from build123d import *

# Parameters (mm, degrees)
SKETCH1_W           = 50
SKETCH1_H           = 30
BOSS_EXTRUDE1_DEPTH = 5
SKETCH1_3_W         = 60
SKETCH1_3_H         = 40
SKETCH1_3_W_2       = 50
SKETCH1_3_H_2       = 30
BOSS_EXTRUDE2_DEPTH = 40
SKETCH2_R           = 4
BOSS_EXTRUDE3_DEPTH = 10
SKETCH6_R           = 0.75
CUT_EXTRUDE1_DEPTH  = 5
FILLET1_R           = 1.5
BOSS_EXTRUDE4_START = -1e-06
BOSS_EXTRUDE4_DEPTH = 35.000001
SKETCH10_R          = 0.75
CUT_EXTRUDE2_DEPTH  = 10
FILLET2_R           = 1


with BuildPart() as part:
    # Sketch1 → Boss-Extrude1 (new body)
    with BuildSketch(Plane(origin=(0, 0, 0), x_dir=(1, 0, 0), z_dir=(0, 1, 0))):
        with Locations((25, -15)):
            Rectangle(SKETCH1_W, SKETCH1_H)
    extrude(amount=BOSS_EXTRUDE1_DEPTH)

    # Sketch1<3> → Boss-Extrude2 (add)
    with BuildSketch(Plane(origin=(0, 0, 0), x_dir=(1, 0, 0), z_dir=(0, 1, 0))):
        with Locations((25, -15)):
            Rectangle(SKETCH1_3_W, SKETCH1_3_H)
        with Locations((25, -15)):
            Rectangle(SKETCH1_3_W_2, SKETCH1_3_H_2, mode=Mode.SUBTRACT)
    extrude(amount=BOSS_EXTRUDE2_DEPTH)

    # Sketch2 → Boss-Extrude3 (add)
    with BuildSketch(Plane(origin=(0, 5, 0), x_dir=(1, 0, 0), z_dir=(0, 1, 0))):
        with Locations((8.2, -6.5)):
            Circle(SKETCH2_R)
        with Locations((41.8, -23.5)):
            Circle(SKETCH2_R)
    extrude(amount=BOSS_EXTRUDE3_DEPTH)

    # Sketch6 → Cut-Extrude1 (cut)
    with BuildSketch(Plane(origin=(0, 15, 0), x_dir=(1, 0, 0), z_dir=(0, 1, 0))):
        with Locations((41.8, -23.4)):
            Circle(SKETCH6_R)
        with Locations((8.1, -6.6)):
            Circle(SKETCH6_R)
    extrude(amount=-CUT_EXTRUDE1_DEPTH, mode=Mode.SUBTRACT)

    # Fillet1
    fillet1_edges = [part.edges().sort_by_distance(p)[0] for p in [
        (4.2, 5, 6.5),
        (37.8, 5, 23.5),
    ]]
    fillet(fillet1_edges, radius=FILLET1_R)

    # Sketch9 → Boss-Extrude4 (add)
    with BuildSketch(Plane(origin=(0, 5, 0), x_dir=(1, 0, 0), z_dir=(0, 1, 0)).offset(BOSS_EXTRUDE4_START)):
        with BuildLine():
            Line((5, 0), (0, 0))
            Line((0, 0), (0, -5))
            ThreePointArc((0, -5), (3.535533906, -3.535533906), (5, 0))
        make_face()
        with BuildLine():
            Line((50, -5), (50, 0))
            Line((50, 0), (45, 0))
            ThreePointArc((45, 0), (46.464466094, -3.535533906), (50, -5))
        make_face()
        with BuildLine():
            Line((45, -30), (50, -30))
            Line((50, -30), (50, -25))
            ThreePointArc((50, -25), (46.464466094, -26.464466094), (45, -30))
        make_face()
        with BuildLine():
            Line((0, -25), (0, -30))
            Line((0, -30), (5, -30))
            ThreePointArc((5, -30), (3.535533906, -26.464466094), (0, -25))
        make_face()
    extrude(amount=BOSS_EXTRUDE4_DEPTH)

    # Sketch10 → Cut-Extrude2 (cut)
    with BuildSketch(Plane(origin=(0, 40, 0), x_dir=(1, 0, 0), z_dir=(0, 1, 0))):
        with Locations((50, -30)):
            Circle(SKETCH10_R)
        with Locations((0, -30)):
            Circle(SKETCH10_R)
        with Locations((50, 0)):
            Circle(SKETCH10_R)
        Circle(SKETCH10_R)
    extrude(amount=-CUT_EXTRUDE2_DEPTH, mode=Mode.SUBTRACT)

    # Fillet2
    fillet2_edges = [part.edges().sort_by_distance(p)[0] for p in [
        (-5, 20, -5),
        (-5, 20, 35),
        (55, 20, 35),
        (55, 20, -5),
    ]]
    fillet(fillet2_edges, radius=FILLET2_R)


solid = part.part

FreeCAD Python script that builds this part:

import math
import FreeCAD as App
import Part
import Sketcher
from FreeCAD import Vector
Q = App.Units.Quantity


def edges_at(feature, points):
    """Names of the edges that pass closest to the given points."""
    edges = feature.Shape.Edges
    near = lambda p: min(range(len(edges)), key=lambda i: edges[i].distToShape(Part.Vertex(*p))[0])
    return sorted({f"Edge{near(p) + 1}" for p in points})

doc = App.newDocument("Part")
body = doc.addObject("PartDesign::Body", "Body")

# Sketch on XZ plane
sketch1 = body.newObject("Sketcher::SketchObject", "Sketch")
sketch1.AttachmentSupport = (doc.getObject("XZ_Plane"), [""])
sketch1.MapMode = "FlatFace"
sketch1.addGeometry(Part.LineSegment(Vector(0, 0, 0), Vector(0, 30, 0)), False)
sketch1.addGeometry(Part.LineSegment(Vector(0, 30, 0), Vector(50, 30, 0)), False)
sketch1.addGeometry(Part.LineSegment(Vector(50, 30, 0), Vector(50, 0, 0)), False)
sketch1.addGeometry(Part.LineSegment(Vector(50, 0, 0), Vector(0, 0, 0)), False)
sketch1.addConstraint(Sketcher.Constraint("Coincident", 0, 2, 1, 1))
sketch1.addConstraint(Sketcher.Constraint("Coincident", 1, 2, 2, 1))
sketch1.addConstraint(Sketcher.Constraint("Coincident", 2, 2, 3, 1))
sketch1.addConstraint(Sketcher.Constraint("Coincident", 3, 2, 0, 1))
sketch1.addConstraint(Sketcher.Constraint("Vertical", 0))
sketch1.addConstraint(Sketcher.Constraint("Horizontal", 1))
sketch1.addConstraint(Sketcher.Constraint("Vertical", 2))
sketch1.addConstraint(Sketcher.Constraint("Horizontal", 3))
sketch1.addConstraint(Sketcher.Constraint("Coincident", 3, 2, -1, 1))
sketch1.addConstraint(Sketcher.Constraint("DistanceX", 1, 1, 1, 2, Q("50 mm")))
sketch1.addConstraint(Sketcher.Constraint("DistanceY", 0, 1, 0, 2, Q("30 mm")))
pad1 = body.newObject("PartDesign::Pad", "Pad")
pad1.Profile = sketch1
pad1.Length = 5
pad1.Reversed = True

# Sketch on XZ plane
sketch2 = body.newObject("Sketcher::SketchObject", "Sketch001")
sketch2.AttachmentSupport = (doc.getObject("XZ_Plane"), [""])
sketch2.MapMode = "FlatFace"
sketch2.addGeometry(Part.LineSegment(Vector(-5, -5, 0), Vector(-5, 35, 0)), False)
sketch2.addGeometry(Part.LineSegment(Vector(-5, 35, 0), Vector(55, 35, 0)), False)
sketch2.addGeometry(Part.LineSegment(Vector(55, 35, 0), Vector(55, -5, 0)), False)
sketch2.addGeometry(Part.LineSegment(Vector(55, -5, 0), Vector(-5, -5, 0)), False)
sketch2.addGeometry(Part.LineSegment(Vector(50, 30, 0), Vector(0, 30, 0)), False)
sketch2.addGeometry(Part.LineSegment(Vector(0, 30, 0), Vector(0, 0, 0)), False)
sketch2.addGeometry(Part.LineSegment(Vector(0, 0, 0), Vector(50, 0, 0)), False)
sketch2.addGeometry(Part.LineSegment(Vector(50, 0, 0), Vector(50, 30, 0)), False)
sketch2.addConstraint(Sketcher.Constraint("Coincident", 0, 2, 1, 1))
sketch2.addConstraint(Sketcher.Constraint("Coincident", 1, 2, 2, 1))
sketch2.addConstraint(Sketcher.Constraint("Coincident", 2, 2, 3, 1))
sketch2.addConstraint(Sketcher.Constraint("Coincident", 3, 2, 0, 1))
sketch2.addConstraint(Sketcher.Constraint("Coincident", 4, 2, 5, 1))
sketch2.addConstraint(Sketcher.Constraint("Coincident", 5, 2, 6, 1))
sketch2.addConstraint(Sketcher.Constraint("Coincident", 6, 2, 7, 1))
sketch2.addConstraint(Sketcher.Constraint("Coincident", 7, 2, 4, 1))
sketch2.addConstraint(Sketcher.Constraint("Vertical", 0))
sketch2.addConstraint(Sketcher.Constraint("Horizontal", 1))
sketch2.addConstraint(Sketcher.Constraint("Vertical", 2))
sketch2.addConstraint(Sketcher.Constraint("Horizontal", 3))
sketch2.addConstraint(Sketcher.Constraint("Horizontal", 4))
sketch2.addConstraint(Sketcher.Constraint("Vertical", 5))
sketch2.addConstraint(Sketcher.Constraint("Horizontal", 6))
sketch2.addConstraint(Sketcher.Constraint("Vertical", 7))
sketch2.addConstraint(Sketcher.Constraint("Coincident", 5, 2, -1, 1))
sketch2.addConstraint(Sketcher.Constraint("DistanceX", 1, 1, 1, 2, Q("60 mm")))
sketch2.addConstraint(Sketcher.Constraint("DistanceX", 4, 2, 4, 1, Q("50 mm")))
sketch2.addConstraint(Sketcher.Constraint("DistanceY", 0, 1, 0, 2, Q("40 mm")))
sketch2.addConstraint(Sketcher.Constraint("DistanceY", 5, 2, 5, 1, Q("30 mm")))
sketch2.addConstraint(Sketcher.Constraint("DistanceX", 0, 2, -1, 1, Q("5 mm")))
sketch2.addConstraint(Sketcher.Constraint("DistanceY", -1, 1, 0, 2, Q("35 mm")))
pad2 = body.newObject("PartDesign::Pad", "Pad001")
pad2.Profile = sketch2
pad2.Length = 40
pad2.Reversed = True

# Sketch on XZ plane
sketch3 = body.newObject("Sketcher::SketchObject", "Sketch002")
sketch3.AttachmentSupport = (doc.getObject("XZ_Plane"), [""])
sketch3.MapMode = "FlatFace"
sketch3.AttachmentOffset = App.Placement(Vector(0, 0, -5), App.Rotation())
sketch3.addGeometry(Part.Circle(Vector(8.2, 6.5, 0), Vector(0, 0, 1), 4), False)
sketch3.addGeometry(Part.Circle(Vector(41.8, 23.5, 0), Vector(0, 0, 1), 4), False)
sketch3.addConstraint(Sketcher.Constraint("Equal", 0, 1))
sketch3.addConstraint(Sketcher.Constraint("Diameter", 0, Q("8 mm")))
sketch3.addConstraint(Sketcher.Constraint("DistanceY", 0, 3, 1, 3, Q("17 mm")))
sketch3.addConstraint(Sketcher.Constraint("DistanceX", -1, 1, 0, 3, Q("8.2 mm")))
sketch3.addConstraint(Sketcher.Constraint("DistanceY", -1, 1, 0, 3, Q("6.5 mm")))
sketch3.addConstraint(Sketcher.Constraint("DistanceX", -1, 1, 1, 3, Q("41.8 mm")))
pad3 = body.newObject("PartDesign::Pad", "Pad002")
pad3.Profile = sketch3
pad3.Length = 10
pad3.Reversed = True

# Sketch on XZ plane
sketch4 = body.newObject("Sketcher::SketchObject", "Sketch003")
sketch4.AttachmentSupport = (doc.getObject("XZ_Plane"), [""])
sketch4.MapMode = "FlatFace"
sketch4.AttachmentOffset = App.Placement(Vector(0, 0, -15), App.Rotation())
sketch4.addGeometry(Part.Circle(Vector(41.8, 23.4, 0), Vector(0, 0, 1), 0.8), False)
sketch4.addGeometry(Part.Circle(Vector(8.1, 6.6, 0), Vector(0, 0, 1), 0.8), False)
sketch4.addConstraint(Sketcher.Constraint("Equal", 0, 1))
sketch4.addConstraint(Sketcher.Constraint("Diameter", 0, Q("1.5 mm")))
sketch4.addConstraint(Sketcher.Constraint("DistanceX", -1, 1, 0, 3, Q("41.8 mm")))
sketch4.addConstraint(Sketcher.Constraint("DistanceY", -1, 1, 0, 3, Q("23.4 mm")))
sketch4.addConstraint(Sketcher.Constraint("DistanceX", -1, 1, 1, 3, Q("8.1 mm")))
sketch4.addConstraint(Sketcher.Constraint("DistanceY", -1, 1, 1, 3, Q("6.6 mm")))
pocket1 = body.newObject("PartDesign::Pocket", "Pocket")
pocket1.Profile = sketch4
pocket1.Length = 5
pocket1.Reversed = True
doc.recompute()

fillet = body.newObject("PartDesign::Fillet", "Fillet")
fillet.Base = (pocket1, edges_at(pocket1, [(4.2, 5, 6.5), (37.8, 5, 23.5)]))
fillet.Radius = 1.5

# Sketch on XZ plane
sketch5 = body.newObject("Sketcher::SketchObject", "Sketch004")
sketch5.AttachmentSupport = (doc.getObject("XZ_Plane"), [""])
sketch5.MapMode = "FlatFace"
sketch5.AttachmentOffset = App.Placement(Vector(0, 0, -4.999999), App.Rotation())
sketch5.addGeometry(Part.LineSegment(Vector(5, 0, 0), Vector(0, 0, 0)), False)
sketch5.addGeometry(Part.LineSegment(Vector(0, 0, 0), Vector(0, 5, 0)), False)
sketch5.addGeometry(Part.ArcOfCircle(Part.Circle(Vector(0, 0, 0), Vector(0, 0, 1), 5), math.radians(0), math.radians(90)), False)
sketch5.addGeometry(Part.LineSegment(Vector(50, 5, 0), Vector(50, 0, 0)), False)
sketch5.addGeometry(Part.LineSegment(Vector(50, 0, 0), Vector(45, 0, 0)), False)
sketch5.addGeometry(Part.ArcOfCircle(Part.Circle(Vector(50, 0, 0), Vector(0, 0, 1), 5), math.radians(90), math.radians(180)), False)
sketch5.addGeometry(Part.LineSegment(Vector(45, 30, 0), Vector(50, 30, 0)), False)
sketch5.addGeometry(Part.LineSegment(Vector(50, 30, 0), Vector(50, 25, 0)), False)
sketch5.addGeometry(Part.ArcOfCircle(Part.Circle(Vector(50, 30, 0), Vector(0, 0, 1), 5), math.radians(180), math.radians(270)), False)
sketch5.addGeometry(Part.LineSegment(Vector(0, 25, 0), Vector(0, 30, 0)), False)
sketch5.addGeometry(Part.LineSegment(Vector(0, 30, 0), Vector(5, 30, 0)), False)
sketch5.addGeometry(Part.ArcOfCircle(Part.Circle(Vector(0, 30, 0), Vector(0, 0, 1), 5), math.radians(-90), math.radians(0)), False)
sketch5.addConstraint(Sketcher.Constraint("Coincident", 0, 2, 1, 1))
sketch5.addConstraint(Sketcher.Constraint("Coincident", 1, 2, 2, 2))
sketch5.addConstraint(Sketcher.Constraint("Coincident", 2, 1, 0, 1))
sketch5.addConstraint(Sketcher.Constraint("Coincident", 3, 2, 4, 1))
sketch5.addConstraint(Sketcher.Constraint("Coincident", 4, 2, 5, 2))
sketch5.addConstraint(Sketcher.Constraint("Coincident", 5, 1, 3, 1))
sketch5.addConstraint(Sketcher.Constraint("Coincident", 6, 2, 7, 1))
sketch5.addConstraint(Sketcher.Constraint("Coincident", 7, 2, 8, 2))
sketch5.addConstraint(Sketcher.Constraint("Coincident", 8, 1, 6, 1))
sketch5.addConstraint(Sketcher.Constraint("Coincident", 9, 2, 10, 1))
sketch5.addConstraint(Sketcher.Constraint("Coincident", 10, 2, 11, 2))
sketch5.addConstraint(Sketcher.Constraint("Coincident", 11, 1, 9, 1))
sketch5.addConstraint(Sketcher.Constraint("Horizontal", 0))
sketch5.addConstraint(Sketcher.Constraint("Vertical", 1))
sketch5.addConstraint(Sketcher.Constraint("Vertical", 3))
sketch5.addConstraint(Sketcher.Constraint("Horizontal", 4))
sketch5.addConstraint(Sketcher.Constraint("Horizontal", 6))
sketch5.addConstraint(Sketcher.Constraint("Vertical", 7))
sketch5.addConstraint(Sketcher.Constraint("Vertical", 9))
sketch5.addConstraint(Sketcher.Constraint("Horizontal", 10))
sketch5.addConstraint(Sketcher.Constraint("Coincident", 2, 3, -1, 1))
sketch5.addConstraint(Sketcher.Constraint("Coincident", 0, 2, -1, 1))
sketch5.addConstraint(Sketcher.Constraint("Coincident", 3, 2, 5, 3))
sketch5.addConstraint(Sketcher.Constraint("Coincident", 6, 2, 8, 3))
sketch5.addConstraint(Sketcher.Constraint("Coincident", 9, 2, 11, 3))
sketch5.addConstraint(Sketcher.Constraint("Equal", 2, 5))
sketch5.addConstraint(Sketcher.Constraint("Equal", 5, 8))
sketch5.addConstraint(Sketcher.Constraint("Equal", 8, 11))
sketch5.addConstraint(Sketcher.Constraint("PointOnObject", 5, 3, -1))
sketch5.addConstraint(Sketcher.Constraint("PointOnObject", 11, 3, -2))
sketch5.addConstraint(Sketcher.Constraint("Horizontal", 8, 3, 11, 3))
sketch5.addConstraint(Sketcher.Constraint("Vertical", 5, 3, 8, 3))
sketch5.addConstraint(Sketcher.Constraint("Radius", 2, Q("5 mm")))
sketch5.addConstraint(Sketcher.Constraint("DistanceX", -1, 1, 5, 3, Q("50 mm")))
sketch5.addConstraint(Sketcher.Constraint("DistanceY", -1, 1, 8, 3, Q("30 mm")))
pad4 = body.newObject("PartDesign::Pad", "Pad003")
pad4.Profile = sketch5
pad4.Length = 35.000001
pad4.Reversed = True

# Sketch on XZ plane
sketch6 = body.newObject("Sketcher::SketchObject", "Sketch005")
sketch6.AttachmentSupport = (doc.getObject("XZ_Plane"), [""])
sketch6.MapMode = "FlatFace"
sketch6.AttachmentOffset = App.Placement(Vector(0, 0, -40), App.Rotation())
sketch6.addGeometry(Part.Circle(Vector(50, 30, 0), Vector(0, 0, 1), 0.8), False)
sketch6.addGeometry(Part.Circle(Vector(0, 30, 0), Vector(0, 0, 1), 0.8), False)
sketch6.addGeometry(Part.Circle(Vector(50, 0, 0), Vector(0, 0, 1), 0.8), False)
sketch6.addGeometry(Part.Circle(Vector(0, 0, 0), Vector(0, 0, 1), 0.8), False)
sketch6.addConstraint(Sketcher.Constraint("Coincident", 3, 3, -1, 1))
sketch6.addConstraint(Sketcher.Constraint("Equal", 0, 1))
sketch6.addConstraint(Sketcher.Constraint("Equal", 1, 2))
sketch6.addConstraint(Sketcher.Constraint("Equal", 2, 3))
sketch6.addConstraint(Sketcher.Constraint("PointOnObject", 1, 3, -2))
sketch6.addConstraint(Sketcher.Constraint("PointOnObject", 2, 3, -1))
sketch6.addConstraint(Sketcher.Constraint("Horizontal", 0, 3, 1, 3))
sketch6.addConstraint(Sketcher.Constraint("Vertical", 0, 3, 2, 3))
sketch6.addConstraint(Sketcher.Constraint("Diameter", 0, Q("1.5 mm")))
sketch6.addConstraint(Sketcher.Constraint("DistanceX", -1, 1, 0, 3, Q("50 mm")))
sketch6.addConstraint(Sketcher.Constraint("DistanceY", -1, 1, 0, 3, Q("30 mm")))
pocket2 = body.newObject("PartDesign::Pocket", "Pocket001")
pocket2.Profile = sketch6
pocket2.Length = 10
pocket2.Reversed = True
doc.recompute()

fillet2 = body.newObject("PartDesign::Fillet", "Fillet001")
fillet2.Base = (pocket2, edges_at(pocket2, [
    (-5, 20, -5),
    (-5, 20, 35),
    (55, 20, 35),
    (55, 20, -5),
]))
fillet2.Radius = 1

doc.recompute()
